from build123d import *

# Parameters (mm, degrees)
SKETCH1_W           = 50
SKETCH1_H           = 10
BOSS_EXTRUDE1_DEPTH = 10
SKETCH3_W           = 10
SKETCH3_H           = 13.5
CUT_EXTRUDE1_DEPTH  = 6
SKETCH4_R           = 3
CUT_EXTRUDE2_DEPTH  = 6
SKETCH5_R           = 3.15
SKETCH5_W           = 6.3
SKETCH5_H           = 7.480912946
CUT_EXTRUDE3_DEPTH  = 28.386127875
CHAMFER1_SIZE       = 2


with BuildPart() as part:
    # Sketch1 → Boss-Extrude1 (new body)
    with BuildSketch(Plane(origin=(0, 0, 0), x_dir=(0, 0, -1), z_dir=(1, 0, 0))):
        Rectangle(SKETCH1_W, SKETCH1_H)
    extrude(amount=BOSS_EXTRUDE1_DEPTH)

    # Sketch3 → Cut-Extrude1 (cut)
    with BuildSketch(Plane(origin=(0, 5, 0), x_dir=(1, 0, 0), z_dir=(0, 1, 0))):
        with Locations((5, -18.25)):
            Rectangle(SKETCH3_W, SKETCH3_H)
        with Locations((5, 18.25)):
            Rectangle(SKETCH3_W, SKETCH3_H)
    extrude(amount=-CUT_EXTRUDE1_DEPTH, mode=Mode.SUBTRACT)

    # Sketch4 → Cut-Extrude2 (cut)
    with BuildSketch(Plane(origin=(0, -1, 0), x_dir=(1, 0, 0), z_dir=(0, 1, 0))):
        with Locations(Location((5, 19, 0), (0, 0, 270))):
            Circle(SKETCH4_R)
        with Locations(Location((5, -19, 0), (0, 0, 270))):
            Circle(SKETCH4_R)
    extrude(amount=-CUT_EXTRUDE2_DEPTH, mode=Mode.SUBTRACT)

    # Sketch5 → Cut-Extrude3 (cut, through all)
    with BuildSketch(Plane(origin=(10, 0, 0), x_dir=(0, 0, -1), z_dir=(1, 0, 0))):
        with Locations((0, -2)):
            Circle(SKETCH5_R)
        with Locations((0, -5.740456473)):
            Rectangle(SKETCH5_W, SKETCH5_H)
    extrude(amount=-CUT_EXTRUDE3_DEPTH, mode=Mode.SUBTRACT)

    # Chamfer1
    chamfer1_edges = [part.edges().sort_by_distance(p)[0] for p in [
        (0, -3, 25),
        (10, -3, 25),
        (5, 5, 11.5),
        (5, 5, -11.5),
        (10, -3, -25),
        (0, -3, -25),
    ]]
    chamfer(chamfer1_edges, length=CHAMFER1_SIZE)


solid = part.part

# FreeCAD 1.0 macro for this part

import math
import FreeCAD as App
import Part
import Sketcher

V = App.Vector
Q = App.Units.Quantity


def edges_at(feature, points):
    """Names of the edges that pass closest to the given points."""
    edges = feature.Shape.Edges
    near = lambda p: min(range(len(edges)), key=lambda i: edges[i].distToShape(Part.Vertex(*p))[0])
    return sorted({f"Edge{near(p) + 1}" for p in points})


def add_polygon(sketch, points):
    """Adds a closed chain of lines whose ends are joined by coincident constraints."""
    first, n = sketch.GeometryCount, len(points)
    for a, b in zip(points, points[1:] + points[:1]):
        sketch.addGeometry(Part.LineSegment(App.Vector(*a, 0), App.Vector(*b, 0)), False)
    for i in range(n):
        sketch.addConstraint(Sketcher.Constraint("Coincident", first + i, 2, first + (i + 1) % n, 1))

doc = App.newDocument("Part")
body = doc.addObject("PartDesign::Body", "Body")

# Sketch on YZ plane
sketch1 = body.newObject("Sketcher::SketchObject", "Sketch")
sketch1.AttachmentSupport = (doc.getObject("YZ_Plane"), [""])
sketch1.MapMode = "FlatFace"
add_polygon(sketch1, [(5, 25), (-5, 25), (-5, -25), (5, -25)])  # lines 0-3
sketch1.addConstraint([
    Sketcher.Constraint("Horizontal", 0),
    Sketcher.Constraint("Vertical", 1),
    Sketcher.Constraint("Horizontal", 2),
    Sketcher.Constraint("Vertical", 3),
    Sketcher.Constraint("Symmetric", 0, 2, 2, 2, -1, 1),
    Sketcher.Constraint("DistanceX", 0, 2, 0, 1, Q("10 mm")),
    Sketcher.Constraint("DistanceY", 1, 2, 1, 1, Q("50 mm")),
])
pad1 = body.newObject("PartDesign::Pad", "Pad")
pad1.Profile = sketch1
pad1.Length = 10

# Sketch on XZ plane
sketch2 = body.newObject("Sketcher::SketchObject", "Sketch001")
sketch2.AttachmentSupport = (doc.getObject("XZ_Plane"), [""])
sketch2.MapMode = "FlatFace"
sketch2.AttachmentOffset = App.Placement(V(0, 0, -5), App.Rotation())
add_polygon(sketch2, [(0, 12), (0, 25), (10, 25), (10, 12)])  # lines 0-3
add_polygon(sketch2, [(0, -25), (0, -12), (10, -12), (10, -25)])  # lines 4-7
sketch2.addConstraint([
    Sketcher.Constraint("Vertical", 0),
    Sketcher.Constraint("Horizontal", 1),
    Sketcher.Constraint("Vertical", 2),
    Sketcher.Constraint("Horizontal", 3),
    Sketcher.Constraint("Vertical", 4),
    Sketcher.Constraint("Horizontal", 5),
    Sketcher.Constraint("Vertical", 6),
    Sketcher.Constraint("Horizontal", 7),
    Sketcher.Constraint("Symmetric", 3, 2, 4, 2, -1, 1),
    Sketcher.Constraint("Symmetric", 1, 2, 6, 2, -1),
    Sketcher.Constraint("PointOnObject", 0, 2, -2),
    Sketcher.Constraint("DistanceX", 1, 1, 1, 2, Q("10 mm")),
    Sketcher.Constraint("DistanceY", 0, 1, 0, 2, Q("13.5 mm")),
    Sketcher.Constraint("DistanceY", -1, 1, 0, 2, Q("25 mm")),
])
pocket1 = body.newObject("PartDesign::Pocket", "Pocket")
pocket1.Profile = sketch2
pocket1.Length = 6
pocket1.Reversed = True

# Sketch on XZ plane
sketch3 = body.newObject("Sketcher::SketchObject", "Sketch002")
sketch3.AttachmentSupport = (doc.getObject("XZ_Plane"), [""])
sketch3.MapMode = "FlatFace"
sketch3.AttachmentOffset = App.Placement(V(0, 0, 1), App.Rotation())
sketch3.addGeometry([
    Part.Circle(V(5, -19, 0), V(0, 0, 1), 3),
    Part.Circle(V(5, 19, 0), V(0, 0, 1), 3),
], False)
sketch3.addConstraint([
    Sketcher.Constraint("Equal", 0, 1),
    Sketcher.Constraint("Symmetric", 0, 3, 1, 3, -1),
    Sketcher.Constraint("Diameter", 0, Q("6 mm")),
    Sketcher.Constraint("DistanceX", -1, 1, 0, 3, Q("5 mm")),
    Sketcher.Constraint("DistanceY", 0, 3, -1, 1, Q("19 mm")),
])
pocket2 = body.newObject("PartDesign::Pocket", "Pocket001")
pocket2.Profile = sketch3
pocket2.Length = 6
pocket2.Reversed = True

# Sketch on YZ plane
sketch4 = body.newObject("Sketcher::SketchObject", "Sketch003")
sketch4.AttachmentSupport = (doc.getObject("YZ_Plane"), [""])
sketch4.MapMode = "FlatFace"
sketch4.AttachmentOffset = App.Placement(V(0, 0, 10), App.Rotation())
sketch4.addGeometry([
    Part.ArcOfCircle(Part.Circle(V(-2, 0, 0), V(0, 0, 1), 3.1), math.radians(-90), math.radians(90)),
    Part.LineSegment(V(-2, 3.1, 0), V(-9.5, 3.1, 0)),
    Part.LineSegment(V(-9.5, 3.1, 0), V(-9.5, -3.1, 0)),
    Part.LineSegment(V(-9.5, -3.1, 0), V(-2, -3.1, 0)),
], False)
sketch4.addConstraint([
    Sketcher.Constraint("Tangent", 0, 2, 1, 1),
    Sketcher.Constraint("Coincident", 1, 2, 2, 1),
    Sketcher.Constraint("Coincident", 2, 2, 3, 1),
    Sketcher.Constraint("Tangent", 3, 2, 0, 1),
    Sketcher.Constraint("Horizontal", 1),
    Sketcher.Constraint("Vertical", 2),
    Sketcher.Constraint("Horizontal", 3),
    Sketcher.Constraint("PointOnObject", 0, 3, -1),
    Sketcher.Constraint("Radius", 0, Q("3.15 mm")),
    Sketcher.Constraint("DistanceX", 0, 3, -1, 1, Q("2 mm")),
    Sketcher.Constraint("DistanceX", 1, 2, 1, 1, Q("7.480913 mm")),
])
pocket3 = body.newObject("PartDesign::Pocket", "Pocket002")
pocket3.Profile = sketch4
pocket3.Type = "ThroughAll"
doc.recompute()

chamfer = body.newObject("PartDesign::Chamfer", "Chamfer")
chamfer.Base = (pocket3, edges_at(pocket3, [
    (0, -3, 25),
    (10, -3, 25),
    (5, 5, 11.5),
    (5, 5, -11.5),
    (10, -3, -25),
    (0, -3, -25),
]))
chamfer.Size = 2

doc.recompute()
